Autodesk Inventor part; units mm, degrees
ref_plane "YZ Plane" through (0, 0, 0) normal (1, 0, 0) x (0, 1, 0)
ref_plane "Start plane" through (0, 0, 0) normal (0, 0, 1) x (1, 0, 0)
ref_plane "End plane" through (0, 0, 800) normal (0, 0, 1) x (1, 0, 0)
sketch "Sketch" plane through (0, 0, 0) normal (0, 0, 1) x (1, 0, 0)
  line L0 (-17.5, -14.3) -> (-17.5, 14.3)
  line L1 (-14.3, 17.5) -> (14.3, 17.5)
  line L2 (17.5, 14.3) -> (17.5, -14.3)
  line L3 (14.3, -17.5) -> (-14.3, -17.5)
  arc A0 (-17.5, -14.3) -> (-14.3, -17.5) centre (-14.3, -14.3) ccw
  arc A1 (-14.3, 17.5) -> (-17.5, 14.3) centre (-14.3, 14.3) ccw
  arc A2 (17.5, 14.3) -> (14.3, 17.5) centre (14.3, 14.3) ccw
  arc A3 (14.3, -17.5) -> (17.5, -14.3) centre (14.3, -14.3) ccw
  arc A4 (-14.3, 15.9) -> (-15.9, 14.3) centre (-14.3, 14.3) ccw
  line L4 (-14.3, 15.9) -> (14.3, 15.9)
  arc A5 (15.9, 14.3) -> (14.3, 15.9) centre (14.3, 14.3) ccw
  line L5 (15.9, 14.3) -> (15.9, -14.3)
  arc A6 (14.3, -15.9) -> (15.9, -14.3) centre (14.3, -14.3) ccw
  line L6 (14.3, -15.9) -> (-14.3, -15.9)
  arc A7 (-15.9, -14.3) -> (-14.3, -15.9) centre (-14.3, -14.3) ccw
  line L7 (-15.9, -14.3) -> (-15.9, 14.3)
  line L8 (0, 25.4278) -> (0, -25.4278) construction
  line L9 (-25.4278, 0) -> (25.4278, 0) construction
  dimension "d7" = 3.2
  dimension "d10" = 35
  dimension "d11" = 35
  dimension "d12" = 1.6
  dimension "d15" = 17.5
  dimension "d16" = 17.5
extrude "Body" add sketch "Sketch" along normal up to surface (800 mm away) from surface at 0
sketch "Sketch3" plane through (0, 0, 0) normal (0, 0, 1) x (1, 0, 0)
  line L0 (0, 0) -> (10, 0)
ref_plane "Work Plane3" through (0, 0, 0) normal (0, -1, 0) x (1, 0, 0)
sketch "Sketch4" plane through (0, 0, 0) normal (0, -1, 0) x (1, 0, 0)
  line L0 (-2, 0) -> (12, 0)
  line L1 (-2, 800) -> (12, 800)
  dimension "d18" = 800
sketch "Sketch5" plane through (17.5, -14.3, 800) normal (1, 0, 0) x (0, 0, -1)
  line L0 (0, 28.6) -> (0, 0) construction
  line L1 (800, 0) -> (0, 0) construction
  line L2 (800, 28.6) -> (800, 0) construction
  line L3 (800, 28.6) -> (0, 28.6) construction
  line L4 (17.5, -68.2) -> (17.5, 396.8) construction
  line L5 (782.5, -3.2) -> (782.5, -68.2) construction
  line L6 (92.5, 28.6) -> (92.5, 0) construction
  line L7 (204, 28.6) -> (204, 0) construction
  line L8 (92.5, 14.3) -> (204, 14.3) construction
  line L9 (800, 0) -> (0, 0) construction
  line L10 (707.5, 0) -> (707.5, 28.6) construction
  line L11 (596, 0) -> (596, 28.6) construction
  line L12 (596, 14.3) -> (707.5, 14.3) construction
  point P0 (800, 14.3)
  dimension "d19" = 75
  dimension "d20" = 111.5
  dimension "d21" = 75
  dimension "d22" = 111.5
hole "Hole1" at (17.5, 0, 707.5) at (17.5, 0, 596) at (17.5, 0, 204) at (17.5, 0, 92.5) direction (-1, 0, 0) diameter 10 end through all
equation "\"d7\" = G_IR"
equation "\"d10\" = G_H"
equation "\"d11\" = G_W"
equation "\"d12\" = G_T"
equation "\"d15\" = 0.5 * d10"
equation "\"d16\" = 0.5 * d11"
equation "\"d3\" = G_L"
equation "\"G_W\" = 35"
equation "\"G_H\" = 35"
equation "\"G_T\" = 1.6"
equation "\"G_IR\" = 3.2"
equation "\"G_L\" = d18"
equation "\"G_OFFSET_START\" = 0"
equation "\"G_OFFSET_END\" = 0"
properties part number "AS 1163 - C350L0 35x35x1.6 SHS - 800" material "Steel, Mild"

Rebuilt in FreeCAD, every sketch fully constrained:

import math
import FreeCAD as App
import Part
import Sketcher

doc = App.newDocument("Part")
body = doc.addObject("PartDesign::Body", "Body")

# Sketch on XY plane
sketch1 = body.newObject("Sketcher::SketchObject", "Sketch")
sketch1.AttachmentSupport = (doc.getObject("XY_Plane"), [""])
sketch1.MapMode = "FlatFace"
sketch1.addGeometry([
    Part.LineSegment(App.Vector(-17.5, 14.3, 0), App.Vector(-17.5, -14.3, 0)),  # 0
    Part.ArcOfCircle(Part.Circle(App.Vector(-14.3, -14.3, 0), App.Vector(0, 0, 1), 3.2), math.radians(180), math.radians(270)),  # 1
    Part.LineSegment(App.Vector(-14.3, -17.5, 0), App.Vector(14.3, -17.5, 0)),  # 2
    Part.ArcOfCircle(Part.Circle(App.Vector(14.3, -14.3, 0), App.Vector(0, 0, 1), 3.2), math.radians(-90), math.radians(0)),  # 3
    Part.LineSegment(App.Vector(17.5, -14.3, 0), App.Vector(17.5, 14.3, 0)),  # 4
    Part.ArcOfCircle(Part.Circle(App.Vector(14.3, 14.3, 0), App.Vector(0, 0, 1), 3.2), math.radians(0), math.radians(90)),  # 5
    Part.LineSegment(App.Vector(14.3, 17.5, 0), App.Vector(-14.3, 17.5, 0)),  # 6
    Part.ArcOfCircle(Part.Circle(App.Vector(-14.3, 14.3, 0), App.Vector(0, 0, 1), 3.2), math.radians(90), math.radians(180)),  # 7
    Part.ArcOfCircle(Part.Circle(App.Vector(-14.3, 14.3, 0), App.Vector(0, 0, 1), 1.6), math.radians(90), math.radians(180)),  # 8
    Part.LineSegment(App.Vector(-14.3, 15.9, 0), App.Vector(14.3, 15.9, 0)),  # 9
    Part.ArcOfCircle(Part.Circle(App.Vector(14.3, 14.3, 0), App.Vector(0, 0, 1), 1.6), math.radians(0), math.radians(90)),  # 10
    Part.LineSegment(App.Vector(15.9, 14.3, 0), App.Vector(15.9, -14.3, 0)),  # 11
    Part.ArcOfCircle(Part.Circle(App.Vector(14.3, -14.3, 0), App.Vector(0, 0, 1), 1.6), math.radians(-90), math.radians(0)),  # 12
    Part.LineSegment(App.Vector(14.3, -15.9, 0), App.Vector(-14.3, -15.9, 0)),  # 13
    Part.ArcOfCircle(Part.Circle(App.Vector(-14.3, -14.3, 0), App.Vector(0, 0, 1), 1.6), math.radians(180), math.radians(270)),  # 14
    Part.LineSegment(App.Vector(-15.9, -14.3, 0), App.Vector(-15.9, 14.3, 0)),  # 15
], False)
sketch1.addConstraint([
    Sketcher.Constraint("Tangent", 0, 2, 1, 1),
    Sketcher.Constraint("Tangent", 1, 2, 2, 1),
    Sketcher.Constraint("Tangent", 2, 2, 3, 1),
    Sketcher.Constraint("Tangent", 3, 2, 4, 1),
    Sketcher.Constraint("Tangent", 4, 2, 5, 1),
    Sketcher.Constraint("Tangent", 5, 2, 6, 1),
    Sketcher.Constraint("Tangent", 6, 2, 7, 1),
    Sketcher.Constraint("Tangent", 7, 2, 0, 1),
    Sketcher.Constraint("Tangent", 8, 1, 9, 1),
    Sketcher.Constraint("Tangent", 9, 2, 10, 2),
    Sketcher.Constraint("Tangent", 10, 1, 11, 1),
    Sketcher.Constraint("Tangent", 11, 2, 12, 2),
    Sketcher.Constraint("Tangent", 12, 1, 13, 1),
    Sketcher.Constraint("Tangent", 13, 2, 14, 2),
    Sketcher.Constraint("Tangent", 14, 1, 15, 1),
    Sketcher.Constraint("Tangent", 15, 2, 8, 2),
    Sketcher.Constraint("Vertical", 0),
    Sketcher.Constraint("Horizontal", 2),
    Sketcher.Constraint("Vertical", 4),
    Sketcher.Constraint("Horizontal", 6),
    Sketcher.Constraint("Horizontal", 9),
    Sketcher.Constraint("Vertical", 11),
    Sketcher.Constraint("Horizontal", 13),
    Sketcher.Constraint("Vertical", 15),
    Sketcher.Constraint("Coincident", 8, 3, 7, 3),
    Sketcher.Constraint("Coincident", 10, 3, 5, 3),
    Sketcher.Constraint("Coincident", 12, 3, 3, 3),
    Sketcher.Constraint("Equal", 1, 3),
    Sketcher.Constraint("Equal", 3, 5),
    Sketcher.Constraint("Equal", 5, 7),
    Sketcher.Constraint("Equal", 12, 14),
    Sketcher.Constraint("Symmetric", 1, 3, 5, 3, -1, 1),
    Sketcher.Constraint("Equal", 13, 0),
    Sketcher.Constraint("Radius", 1, 3.2),
    Sketcher.Constraint("Radius", 8, 1.6),
    Sketcher.Constraint("DistanceX", 0, 2, -1, 1, 17.5),
])
pad1 = body.newObject("PartDesign::Pad", "Pad")
pad1.Profile = sketch1
pad1.Length = 800

# Sketch on YZ plane
sketch2 = body.newObject("Sketcher::SketchObject", "Sketch001")
sketch2.AttachmentSupport = (doc.getObject("YZ_Plane"), [""])
sketch2.MapMode = "FlatFace"
sketch2.AttachmentOffset = App.Placement(App.Vector(0, 0, 17.5), App.Rotation())
sketch2.addGeometry([
    Part.Circle(App.Vector(0, 708, 0), App.Vector(0, 0, 1), 5),
    Part.Circle(App.Vector(0, 596, 0), App.Vector(0, 0, 1), 5),
    Part.Circle(App.Vector(0, 204, 0), App.Vector(0, 0, 1), 5),
    Part.Circle(App.Vector(0, 92, 0), App.Vector(0, 0, 1), 5),
], False)
sketch2.addConstraint([
    Sketcher.Constraint("Equal", 0, 1),
    Sketcher.Constraint("Equal", 1, 2),
    Sketcher.Constraint("Equal", 2, 3),
    Sketcher.Constraint("PointOnObject", 0, 3, -2),
    Sketcher.Constraint("PointOnObject", 1, 3, -2),
    Sketcher.Constraint("PointOnObject", 2, 3, -2),
    Sketcher.Constraint("PointOnObject", 3, 3, -2),
    Sketcher.Constraint("Diameter", 0, 10.0),
    Sketcher.Constraint("DistanceY", -1, 1, 1, 3, 596.0),
    Sketcher.Constraint("DistanceY", -1, 1, 2, 3, 204.0),
    Sketcher.Constraint("DistanceY", 3, 3, 0, 3, 615.0),
    Sketcher.Constraint("DistanceY", -1, 1, 0, 3, 707.5),
])
doc.recompute()
hole = body.newObject("PartDesign::Hole", "Hole")
hole.Profile = sketch2
hole.ThreadType = "None"
hole.Diameter = 10
hole.DepthType = "ThroughAll"

doc.recompute()
